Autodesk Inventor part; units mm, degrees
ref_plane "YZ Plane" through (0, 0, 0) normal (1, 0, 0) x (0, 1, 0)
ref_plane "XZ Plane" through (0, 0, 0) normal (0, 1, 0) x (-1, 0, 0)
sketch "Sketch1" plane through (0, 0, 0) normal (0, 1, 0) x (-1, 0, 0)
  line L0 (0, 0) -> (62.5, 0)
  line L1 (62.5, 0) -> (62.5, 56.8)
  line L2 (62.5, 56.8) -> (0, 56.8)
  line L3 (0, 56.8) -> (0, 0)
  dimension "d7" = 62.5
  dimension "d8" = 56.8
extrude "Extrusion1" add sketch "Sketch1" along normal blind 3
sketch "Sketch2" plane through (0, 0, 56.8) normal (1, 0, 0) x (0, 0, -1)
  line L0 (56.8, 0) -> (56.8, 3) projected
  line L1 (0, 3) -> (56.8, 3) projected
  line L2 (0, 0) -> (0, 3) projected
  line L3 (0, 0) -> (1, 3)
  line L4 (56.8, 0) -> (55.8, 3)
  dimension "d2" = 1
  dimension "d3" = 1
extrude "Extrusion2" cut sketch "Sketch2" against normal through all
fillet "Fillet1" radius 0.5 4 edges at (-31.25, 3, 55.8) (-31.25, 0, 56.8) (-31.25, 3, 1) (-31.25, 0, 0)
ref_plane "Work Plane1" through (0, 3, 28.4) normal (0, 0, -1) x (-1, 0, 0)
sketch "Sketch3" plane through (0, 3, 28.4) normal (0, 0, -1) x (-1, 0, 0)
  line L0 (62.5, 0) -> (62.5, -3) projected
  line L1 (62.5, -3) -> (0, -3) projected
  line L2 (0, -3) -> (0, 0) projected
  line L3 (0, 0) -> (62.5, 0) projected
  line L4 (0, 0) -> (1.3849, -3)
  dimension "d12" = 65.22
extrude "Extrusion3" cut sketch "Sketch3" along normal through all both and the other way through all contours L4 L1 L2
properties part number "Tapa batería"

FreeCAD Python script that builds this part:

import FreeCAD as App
import Part
import Sketcher
from FreeCAD import Vector
Q = App.Units.Quantity


def edges_at(feature, points):
    """Names of the edges that pass closest to the given points."""
    edges = feature.Shape.Edges
    near = lambda p: min(range(len(edges)), key=lambda i: edges[i].distToShape(Part.Vertex(*p))[0])
    return sorted({f"Edge{near(p) + 1}" for p in points})


def add_polygon(sketch, points):
    """Adds a closed chain of lines whose ends are joined by coincident constraints."""
    first, n = sketch.GeometryCount, len(points)
    for a, b in zip(points, points[1:] + points[:1]):
        sketch.addGeometry(Part.LineSegment(App.Vector(*a, 0), App.Vector(*b, 0)), False)
    for i in range(n):
        sketch.addConstraint(Sketcher.Constraint("Coincident", first + i, 2, first + (i + 1) % n, 1))

doc = App.newDocument("Part")
body = doc.addObject("PartDesign::Body", "Body")

# Sketch on XZ plane
sketch1 = body.newObject("Sketcher::SketchObject", "Sketch")
sketch1.AttachmentSupport = (doc.getObject("XZ_Plane"), [""])
sketch1.MapMode = "FlatFace"
add_polygon(sketch1, [(0, 57), (0, 0), (-62, 0), (-62, 57)])  # lines 0-3
sketch1.addConstraint(Sketcher.Constraint("Vertical", 0))
sketch1.addConstraint(Sketcher.Constraint("Horizontal", 1))
sketch1.addConstraint(Sketcher.Constraint("Vertical", 2))
sketch1.addConstraint(Sketcher.Constraint("Horizontal", 3))
sketch1.addConstraint(Sketcher.Constraint("Coincident", 0, 2, -1, 1))
sketch1.addConstraint(Sketcher.Constraint("DistanceX", 1, 2, 1, 1, 62.5))
sketch1.addConstraint(Sketcher.Constraint("DistanceY", 0, 2, 0, 1, 56.8))
pad1 = body.newObject("PartDesign::Pad", "Pad")
pad1.Profile = sketch1
pad1.Length = 3
pad1.Reversed = True

# Sketch on YZ plane
sketch2 = body.newObject("Sketcher::SketchObject", "Sketch001")
sketch2.AttachmentSupport = (doc.getObject("YZ_Plane"), [""])
sketch2.MapMode = "FlatFace"
add_polygon(sketch2, [(3, 1), (0, 0), (3, 0)])  # lines 0-2
add_polygon(sketch2, [(0, 56.8), (3, 55.8), (3, 56.8)])  # lines 3-5
sketch2.addConstraint(Sketcher.Constraint("Horizontal", 1))
sketch2.addConstraint(Sketcher.Constraint("Vertical", 2))
sketch2.addConstraint(Sketcher.Constraint("Vertical", 4))
sketch2.addConstraint(Sketcher.Constraint("Horizontal", 5))
sketch2.addConstraint(Sketcher.Constraint("Coincident", 0, 2, -1, 1))
sketch2.addConstraint(Sketcher.Constraint("PointOnObject", 5, 2, -2))
sketch2.addConstraint(Sketcher.Constraint("Vertical", 2, 2, 3, 2))
sketch2.addConstraint(Sketcher.Constraint("Equal", 2, 4))
sketch2.addConstraint(Sketcher.Constraint("DistanceY", 2, 1, 2, 2, 1.0))
sketch2.addConstraint(Sketcher.Constraint("DistanceX", 1, 1, 1, 2, 3.0))
sketch2.addConstraint(Sketcher.Constraint("DistanceY", -1, 1, 3, 2, 55.8))
pocket1 = body.newObject("PartDesign::Pocket", "Pocket")
pocket1.Profile = sketch2
pocket1.Type = "ThroughAll"
doc.recompute()

fillet = body.newObject("PartDesign::Fillet", "Fillet")
fillet.Base = (pocket1, edges_at(pocket1, [
    (-31.25, 3, 55.8),
    (-31.25, 0, 56.8),
    (-31.25, 3, 1),
    (-31.25, 0, 0),
]))
fillet.Radius = 0.5

# Sketch on XY plane
sketch3 = body.newObject("Sketcher::SketchObject", "Sketch002")
sketch3.AttachmentSupport = (doc.getObject("XY_Plane"), [""])
sketch3.MapMode = "FlatFace"
sketch3.AttachmentOffset = App.Placement(Vector(0, 0, 28.4), App.Rotation())
add_polygon(sketch3, [(-1.4, 0), (0, 3), (0, 0)])  # lines 0-2
sketch3.addConstraint(Sketcher.Constraint("Vertical", 1))
sketch3.addConstraint(Sketcher.Constraint("Horizontal", 2))
sketch3.addConstraint(Sketcher.Constraint("Coincident", 1, 2, -1, 1))
sketch3.addConstraint(Sketcher.Constraint("Angle", 0, Q("65.2204 deg")))
sketch3.addConstraint(Sketcher.Constraint("DistanceY", 1, 2, 1, 1, 3.0))
pocket2 = body.newObject("PartDesign::Pocket", "Pocket001")
pocket2.Profile = sketch3
pocket2.Type = "ThroughAll"
pocket2.Midplane = True

doc.recompute()
